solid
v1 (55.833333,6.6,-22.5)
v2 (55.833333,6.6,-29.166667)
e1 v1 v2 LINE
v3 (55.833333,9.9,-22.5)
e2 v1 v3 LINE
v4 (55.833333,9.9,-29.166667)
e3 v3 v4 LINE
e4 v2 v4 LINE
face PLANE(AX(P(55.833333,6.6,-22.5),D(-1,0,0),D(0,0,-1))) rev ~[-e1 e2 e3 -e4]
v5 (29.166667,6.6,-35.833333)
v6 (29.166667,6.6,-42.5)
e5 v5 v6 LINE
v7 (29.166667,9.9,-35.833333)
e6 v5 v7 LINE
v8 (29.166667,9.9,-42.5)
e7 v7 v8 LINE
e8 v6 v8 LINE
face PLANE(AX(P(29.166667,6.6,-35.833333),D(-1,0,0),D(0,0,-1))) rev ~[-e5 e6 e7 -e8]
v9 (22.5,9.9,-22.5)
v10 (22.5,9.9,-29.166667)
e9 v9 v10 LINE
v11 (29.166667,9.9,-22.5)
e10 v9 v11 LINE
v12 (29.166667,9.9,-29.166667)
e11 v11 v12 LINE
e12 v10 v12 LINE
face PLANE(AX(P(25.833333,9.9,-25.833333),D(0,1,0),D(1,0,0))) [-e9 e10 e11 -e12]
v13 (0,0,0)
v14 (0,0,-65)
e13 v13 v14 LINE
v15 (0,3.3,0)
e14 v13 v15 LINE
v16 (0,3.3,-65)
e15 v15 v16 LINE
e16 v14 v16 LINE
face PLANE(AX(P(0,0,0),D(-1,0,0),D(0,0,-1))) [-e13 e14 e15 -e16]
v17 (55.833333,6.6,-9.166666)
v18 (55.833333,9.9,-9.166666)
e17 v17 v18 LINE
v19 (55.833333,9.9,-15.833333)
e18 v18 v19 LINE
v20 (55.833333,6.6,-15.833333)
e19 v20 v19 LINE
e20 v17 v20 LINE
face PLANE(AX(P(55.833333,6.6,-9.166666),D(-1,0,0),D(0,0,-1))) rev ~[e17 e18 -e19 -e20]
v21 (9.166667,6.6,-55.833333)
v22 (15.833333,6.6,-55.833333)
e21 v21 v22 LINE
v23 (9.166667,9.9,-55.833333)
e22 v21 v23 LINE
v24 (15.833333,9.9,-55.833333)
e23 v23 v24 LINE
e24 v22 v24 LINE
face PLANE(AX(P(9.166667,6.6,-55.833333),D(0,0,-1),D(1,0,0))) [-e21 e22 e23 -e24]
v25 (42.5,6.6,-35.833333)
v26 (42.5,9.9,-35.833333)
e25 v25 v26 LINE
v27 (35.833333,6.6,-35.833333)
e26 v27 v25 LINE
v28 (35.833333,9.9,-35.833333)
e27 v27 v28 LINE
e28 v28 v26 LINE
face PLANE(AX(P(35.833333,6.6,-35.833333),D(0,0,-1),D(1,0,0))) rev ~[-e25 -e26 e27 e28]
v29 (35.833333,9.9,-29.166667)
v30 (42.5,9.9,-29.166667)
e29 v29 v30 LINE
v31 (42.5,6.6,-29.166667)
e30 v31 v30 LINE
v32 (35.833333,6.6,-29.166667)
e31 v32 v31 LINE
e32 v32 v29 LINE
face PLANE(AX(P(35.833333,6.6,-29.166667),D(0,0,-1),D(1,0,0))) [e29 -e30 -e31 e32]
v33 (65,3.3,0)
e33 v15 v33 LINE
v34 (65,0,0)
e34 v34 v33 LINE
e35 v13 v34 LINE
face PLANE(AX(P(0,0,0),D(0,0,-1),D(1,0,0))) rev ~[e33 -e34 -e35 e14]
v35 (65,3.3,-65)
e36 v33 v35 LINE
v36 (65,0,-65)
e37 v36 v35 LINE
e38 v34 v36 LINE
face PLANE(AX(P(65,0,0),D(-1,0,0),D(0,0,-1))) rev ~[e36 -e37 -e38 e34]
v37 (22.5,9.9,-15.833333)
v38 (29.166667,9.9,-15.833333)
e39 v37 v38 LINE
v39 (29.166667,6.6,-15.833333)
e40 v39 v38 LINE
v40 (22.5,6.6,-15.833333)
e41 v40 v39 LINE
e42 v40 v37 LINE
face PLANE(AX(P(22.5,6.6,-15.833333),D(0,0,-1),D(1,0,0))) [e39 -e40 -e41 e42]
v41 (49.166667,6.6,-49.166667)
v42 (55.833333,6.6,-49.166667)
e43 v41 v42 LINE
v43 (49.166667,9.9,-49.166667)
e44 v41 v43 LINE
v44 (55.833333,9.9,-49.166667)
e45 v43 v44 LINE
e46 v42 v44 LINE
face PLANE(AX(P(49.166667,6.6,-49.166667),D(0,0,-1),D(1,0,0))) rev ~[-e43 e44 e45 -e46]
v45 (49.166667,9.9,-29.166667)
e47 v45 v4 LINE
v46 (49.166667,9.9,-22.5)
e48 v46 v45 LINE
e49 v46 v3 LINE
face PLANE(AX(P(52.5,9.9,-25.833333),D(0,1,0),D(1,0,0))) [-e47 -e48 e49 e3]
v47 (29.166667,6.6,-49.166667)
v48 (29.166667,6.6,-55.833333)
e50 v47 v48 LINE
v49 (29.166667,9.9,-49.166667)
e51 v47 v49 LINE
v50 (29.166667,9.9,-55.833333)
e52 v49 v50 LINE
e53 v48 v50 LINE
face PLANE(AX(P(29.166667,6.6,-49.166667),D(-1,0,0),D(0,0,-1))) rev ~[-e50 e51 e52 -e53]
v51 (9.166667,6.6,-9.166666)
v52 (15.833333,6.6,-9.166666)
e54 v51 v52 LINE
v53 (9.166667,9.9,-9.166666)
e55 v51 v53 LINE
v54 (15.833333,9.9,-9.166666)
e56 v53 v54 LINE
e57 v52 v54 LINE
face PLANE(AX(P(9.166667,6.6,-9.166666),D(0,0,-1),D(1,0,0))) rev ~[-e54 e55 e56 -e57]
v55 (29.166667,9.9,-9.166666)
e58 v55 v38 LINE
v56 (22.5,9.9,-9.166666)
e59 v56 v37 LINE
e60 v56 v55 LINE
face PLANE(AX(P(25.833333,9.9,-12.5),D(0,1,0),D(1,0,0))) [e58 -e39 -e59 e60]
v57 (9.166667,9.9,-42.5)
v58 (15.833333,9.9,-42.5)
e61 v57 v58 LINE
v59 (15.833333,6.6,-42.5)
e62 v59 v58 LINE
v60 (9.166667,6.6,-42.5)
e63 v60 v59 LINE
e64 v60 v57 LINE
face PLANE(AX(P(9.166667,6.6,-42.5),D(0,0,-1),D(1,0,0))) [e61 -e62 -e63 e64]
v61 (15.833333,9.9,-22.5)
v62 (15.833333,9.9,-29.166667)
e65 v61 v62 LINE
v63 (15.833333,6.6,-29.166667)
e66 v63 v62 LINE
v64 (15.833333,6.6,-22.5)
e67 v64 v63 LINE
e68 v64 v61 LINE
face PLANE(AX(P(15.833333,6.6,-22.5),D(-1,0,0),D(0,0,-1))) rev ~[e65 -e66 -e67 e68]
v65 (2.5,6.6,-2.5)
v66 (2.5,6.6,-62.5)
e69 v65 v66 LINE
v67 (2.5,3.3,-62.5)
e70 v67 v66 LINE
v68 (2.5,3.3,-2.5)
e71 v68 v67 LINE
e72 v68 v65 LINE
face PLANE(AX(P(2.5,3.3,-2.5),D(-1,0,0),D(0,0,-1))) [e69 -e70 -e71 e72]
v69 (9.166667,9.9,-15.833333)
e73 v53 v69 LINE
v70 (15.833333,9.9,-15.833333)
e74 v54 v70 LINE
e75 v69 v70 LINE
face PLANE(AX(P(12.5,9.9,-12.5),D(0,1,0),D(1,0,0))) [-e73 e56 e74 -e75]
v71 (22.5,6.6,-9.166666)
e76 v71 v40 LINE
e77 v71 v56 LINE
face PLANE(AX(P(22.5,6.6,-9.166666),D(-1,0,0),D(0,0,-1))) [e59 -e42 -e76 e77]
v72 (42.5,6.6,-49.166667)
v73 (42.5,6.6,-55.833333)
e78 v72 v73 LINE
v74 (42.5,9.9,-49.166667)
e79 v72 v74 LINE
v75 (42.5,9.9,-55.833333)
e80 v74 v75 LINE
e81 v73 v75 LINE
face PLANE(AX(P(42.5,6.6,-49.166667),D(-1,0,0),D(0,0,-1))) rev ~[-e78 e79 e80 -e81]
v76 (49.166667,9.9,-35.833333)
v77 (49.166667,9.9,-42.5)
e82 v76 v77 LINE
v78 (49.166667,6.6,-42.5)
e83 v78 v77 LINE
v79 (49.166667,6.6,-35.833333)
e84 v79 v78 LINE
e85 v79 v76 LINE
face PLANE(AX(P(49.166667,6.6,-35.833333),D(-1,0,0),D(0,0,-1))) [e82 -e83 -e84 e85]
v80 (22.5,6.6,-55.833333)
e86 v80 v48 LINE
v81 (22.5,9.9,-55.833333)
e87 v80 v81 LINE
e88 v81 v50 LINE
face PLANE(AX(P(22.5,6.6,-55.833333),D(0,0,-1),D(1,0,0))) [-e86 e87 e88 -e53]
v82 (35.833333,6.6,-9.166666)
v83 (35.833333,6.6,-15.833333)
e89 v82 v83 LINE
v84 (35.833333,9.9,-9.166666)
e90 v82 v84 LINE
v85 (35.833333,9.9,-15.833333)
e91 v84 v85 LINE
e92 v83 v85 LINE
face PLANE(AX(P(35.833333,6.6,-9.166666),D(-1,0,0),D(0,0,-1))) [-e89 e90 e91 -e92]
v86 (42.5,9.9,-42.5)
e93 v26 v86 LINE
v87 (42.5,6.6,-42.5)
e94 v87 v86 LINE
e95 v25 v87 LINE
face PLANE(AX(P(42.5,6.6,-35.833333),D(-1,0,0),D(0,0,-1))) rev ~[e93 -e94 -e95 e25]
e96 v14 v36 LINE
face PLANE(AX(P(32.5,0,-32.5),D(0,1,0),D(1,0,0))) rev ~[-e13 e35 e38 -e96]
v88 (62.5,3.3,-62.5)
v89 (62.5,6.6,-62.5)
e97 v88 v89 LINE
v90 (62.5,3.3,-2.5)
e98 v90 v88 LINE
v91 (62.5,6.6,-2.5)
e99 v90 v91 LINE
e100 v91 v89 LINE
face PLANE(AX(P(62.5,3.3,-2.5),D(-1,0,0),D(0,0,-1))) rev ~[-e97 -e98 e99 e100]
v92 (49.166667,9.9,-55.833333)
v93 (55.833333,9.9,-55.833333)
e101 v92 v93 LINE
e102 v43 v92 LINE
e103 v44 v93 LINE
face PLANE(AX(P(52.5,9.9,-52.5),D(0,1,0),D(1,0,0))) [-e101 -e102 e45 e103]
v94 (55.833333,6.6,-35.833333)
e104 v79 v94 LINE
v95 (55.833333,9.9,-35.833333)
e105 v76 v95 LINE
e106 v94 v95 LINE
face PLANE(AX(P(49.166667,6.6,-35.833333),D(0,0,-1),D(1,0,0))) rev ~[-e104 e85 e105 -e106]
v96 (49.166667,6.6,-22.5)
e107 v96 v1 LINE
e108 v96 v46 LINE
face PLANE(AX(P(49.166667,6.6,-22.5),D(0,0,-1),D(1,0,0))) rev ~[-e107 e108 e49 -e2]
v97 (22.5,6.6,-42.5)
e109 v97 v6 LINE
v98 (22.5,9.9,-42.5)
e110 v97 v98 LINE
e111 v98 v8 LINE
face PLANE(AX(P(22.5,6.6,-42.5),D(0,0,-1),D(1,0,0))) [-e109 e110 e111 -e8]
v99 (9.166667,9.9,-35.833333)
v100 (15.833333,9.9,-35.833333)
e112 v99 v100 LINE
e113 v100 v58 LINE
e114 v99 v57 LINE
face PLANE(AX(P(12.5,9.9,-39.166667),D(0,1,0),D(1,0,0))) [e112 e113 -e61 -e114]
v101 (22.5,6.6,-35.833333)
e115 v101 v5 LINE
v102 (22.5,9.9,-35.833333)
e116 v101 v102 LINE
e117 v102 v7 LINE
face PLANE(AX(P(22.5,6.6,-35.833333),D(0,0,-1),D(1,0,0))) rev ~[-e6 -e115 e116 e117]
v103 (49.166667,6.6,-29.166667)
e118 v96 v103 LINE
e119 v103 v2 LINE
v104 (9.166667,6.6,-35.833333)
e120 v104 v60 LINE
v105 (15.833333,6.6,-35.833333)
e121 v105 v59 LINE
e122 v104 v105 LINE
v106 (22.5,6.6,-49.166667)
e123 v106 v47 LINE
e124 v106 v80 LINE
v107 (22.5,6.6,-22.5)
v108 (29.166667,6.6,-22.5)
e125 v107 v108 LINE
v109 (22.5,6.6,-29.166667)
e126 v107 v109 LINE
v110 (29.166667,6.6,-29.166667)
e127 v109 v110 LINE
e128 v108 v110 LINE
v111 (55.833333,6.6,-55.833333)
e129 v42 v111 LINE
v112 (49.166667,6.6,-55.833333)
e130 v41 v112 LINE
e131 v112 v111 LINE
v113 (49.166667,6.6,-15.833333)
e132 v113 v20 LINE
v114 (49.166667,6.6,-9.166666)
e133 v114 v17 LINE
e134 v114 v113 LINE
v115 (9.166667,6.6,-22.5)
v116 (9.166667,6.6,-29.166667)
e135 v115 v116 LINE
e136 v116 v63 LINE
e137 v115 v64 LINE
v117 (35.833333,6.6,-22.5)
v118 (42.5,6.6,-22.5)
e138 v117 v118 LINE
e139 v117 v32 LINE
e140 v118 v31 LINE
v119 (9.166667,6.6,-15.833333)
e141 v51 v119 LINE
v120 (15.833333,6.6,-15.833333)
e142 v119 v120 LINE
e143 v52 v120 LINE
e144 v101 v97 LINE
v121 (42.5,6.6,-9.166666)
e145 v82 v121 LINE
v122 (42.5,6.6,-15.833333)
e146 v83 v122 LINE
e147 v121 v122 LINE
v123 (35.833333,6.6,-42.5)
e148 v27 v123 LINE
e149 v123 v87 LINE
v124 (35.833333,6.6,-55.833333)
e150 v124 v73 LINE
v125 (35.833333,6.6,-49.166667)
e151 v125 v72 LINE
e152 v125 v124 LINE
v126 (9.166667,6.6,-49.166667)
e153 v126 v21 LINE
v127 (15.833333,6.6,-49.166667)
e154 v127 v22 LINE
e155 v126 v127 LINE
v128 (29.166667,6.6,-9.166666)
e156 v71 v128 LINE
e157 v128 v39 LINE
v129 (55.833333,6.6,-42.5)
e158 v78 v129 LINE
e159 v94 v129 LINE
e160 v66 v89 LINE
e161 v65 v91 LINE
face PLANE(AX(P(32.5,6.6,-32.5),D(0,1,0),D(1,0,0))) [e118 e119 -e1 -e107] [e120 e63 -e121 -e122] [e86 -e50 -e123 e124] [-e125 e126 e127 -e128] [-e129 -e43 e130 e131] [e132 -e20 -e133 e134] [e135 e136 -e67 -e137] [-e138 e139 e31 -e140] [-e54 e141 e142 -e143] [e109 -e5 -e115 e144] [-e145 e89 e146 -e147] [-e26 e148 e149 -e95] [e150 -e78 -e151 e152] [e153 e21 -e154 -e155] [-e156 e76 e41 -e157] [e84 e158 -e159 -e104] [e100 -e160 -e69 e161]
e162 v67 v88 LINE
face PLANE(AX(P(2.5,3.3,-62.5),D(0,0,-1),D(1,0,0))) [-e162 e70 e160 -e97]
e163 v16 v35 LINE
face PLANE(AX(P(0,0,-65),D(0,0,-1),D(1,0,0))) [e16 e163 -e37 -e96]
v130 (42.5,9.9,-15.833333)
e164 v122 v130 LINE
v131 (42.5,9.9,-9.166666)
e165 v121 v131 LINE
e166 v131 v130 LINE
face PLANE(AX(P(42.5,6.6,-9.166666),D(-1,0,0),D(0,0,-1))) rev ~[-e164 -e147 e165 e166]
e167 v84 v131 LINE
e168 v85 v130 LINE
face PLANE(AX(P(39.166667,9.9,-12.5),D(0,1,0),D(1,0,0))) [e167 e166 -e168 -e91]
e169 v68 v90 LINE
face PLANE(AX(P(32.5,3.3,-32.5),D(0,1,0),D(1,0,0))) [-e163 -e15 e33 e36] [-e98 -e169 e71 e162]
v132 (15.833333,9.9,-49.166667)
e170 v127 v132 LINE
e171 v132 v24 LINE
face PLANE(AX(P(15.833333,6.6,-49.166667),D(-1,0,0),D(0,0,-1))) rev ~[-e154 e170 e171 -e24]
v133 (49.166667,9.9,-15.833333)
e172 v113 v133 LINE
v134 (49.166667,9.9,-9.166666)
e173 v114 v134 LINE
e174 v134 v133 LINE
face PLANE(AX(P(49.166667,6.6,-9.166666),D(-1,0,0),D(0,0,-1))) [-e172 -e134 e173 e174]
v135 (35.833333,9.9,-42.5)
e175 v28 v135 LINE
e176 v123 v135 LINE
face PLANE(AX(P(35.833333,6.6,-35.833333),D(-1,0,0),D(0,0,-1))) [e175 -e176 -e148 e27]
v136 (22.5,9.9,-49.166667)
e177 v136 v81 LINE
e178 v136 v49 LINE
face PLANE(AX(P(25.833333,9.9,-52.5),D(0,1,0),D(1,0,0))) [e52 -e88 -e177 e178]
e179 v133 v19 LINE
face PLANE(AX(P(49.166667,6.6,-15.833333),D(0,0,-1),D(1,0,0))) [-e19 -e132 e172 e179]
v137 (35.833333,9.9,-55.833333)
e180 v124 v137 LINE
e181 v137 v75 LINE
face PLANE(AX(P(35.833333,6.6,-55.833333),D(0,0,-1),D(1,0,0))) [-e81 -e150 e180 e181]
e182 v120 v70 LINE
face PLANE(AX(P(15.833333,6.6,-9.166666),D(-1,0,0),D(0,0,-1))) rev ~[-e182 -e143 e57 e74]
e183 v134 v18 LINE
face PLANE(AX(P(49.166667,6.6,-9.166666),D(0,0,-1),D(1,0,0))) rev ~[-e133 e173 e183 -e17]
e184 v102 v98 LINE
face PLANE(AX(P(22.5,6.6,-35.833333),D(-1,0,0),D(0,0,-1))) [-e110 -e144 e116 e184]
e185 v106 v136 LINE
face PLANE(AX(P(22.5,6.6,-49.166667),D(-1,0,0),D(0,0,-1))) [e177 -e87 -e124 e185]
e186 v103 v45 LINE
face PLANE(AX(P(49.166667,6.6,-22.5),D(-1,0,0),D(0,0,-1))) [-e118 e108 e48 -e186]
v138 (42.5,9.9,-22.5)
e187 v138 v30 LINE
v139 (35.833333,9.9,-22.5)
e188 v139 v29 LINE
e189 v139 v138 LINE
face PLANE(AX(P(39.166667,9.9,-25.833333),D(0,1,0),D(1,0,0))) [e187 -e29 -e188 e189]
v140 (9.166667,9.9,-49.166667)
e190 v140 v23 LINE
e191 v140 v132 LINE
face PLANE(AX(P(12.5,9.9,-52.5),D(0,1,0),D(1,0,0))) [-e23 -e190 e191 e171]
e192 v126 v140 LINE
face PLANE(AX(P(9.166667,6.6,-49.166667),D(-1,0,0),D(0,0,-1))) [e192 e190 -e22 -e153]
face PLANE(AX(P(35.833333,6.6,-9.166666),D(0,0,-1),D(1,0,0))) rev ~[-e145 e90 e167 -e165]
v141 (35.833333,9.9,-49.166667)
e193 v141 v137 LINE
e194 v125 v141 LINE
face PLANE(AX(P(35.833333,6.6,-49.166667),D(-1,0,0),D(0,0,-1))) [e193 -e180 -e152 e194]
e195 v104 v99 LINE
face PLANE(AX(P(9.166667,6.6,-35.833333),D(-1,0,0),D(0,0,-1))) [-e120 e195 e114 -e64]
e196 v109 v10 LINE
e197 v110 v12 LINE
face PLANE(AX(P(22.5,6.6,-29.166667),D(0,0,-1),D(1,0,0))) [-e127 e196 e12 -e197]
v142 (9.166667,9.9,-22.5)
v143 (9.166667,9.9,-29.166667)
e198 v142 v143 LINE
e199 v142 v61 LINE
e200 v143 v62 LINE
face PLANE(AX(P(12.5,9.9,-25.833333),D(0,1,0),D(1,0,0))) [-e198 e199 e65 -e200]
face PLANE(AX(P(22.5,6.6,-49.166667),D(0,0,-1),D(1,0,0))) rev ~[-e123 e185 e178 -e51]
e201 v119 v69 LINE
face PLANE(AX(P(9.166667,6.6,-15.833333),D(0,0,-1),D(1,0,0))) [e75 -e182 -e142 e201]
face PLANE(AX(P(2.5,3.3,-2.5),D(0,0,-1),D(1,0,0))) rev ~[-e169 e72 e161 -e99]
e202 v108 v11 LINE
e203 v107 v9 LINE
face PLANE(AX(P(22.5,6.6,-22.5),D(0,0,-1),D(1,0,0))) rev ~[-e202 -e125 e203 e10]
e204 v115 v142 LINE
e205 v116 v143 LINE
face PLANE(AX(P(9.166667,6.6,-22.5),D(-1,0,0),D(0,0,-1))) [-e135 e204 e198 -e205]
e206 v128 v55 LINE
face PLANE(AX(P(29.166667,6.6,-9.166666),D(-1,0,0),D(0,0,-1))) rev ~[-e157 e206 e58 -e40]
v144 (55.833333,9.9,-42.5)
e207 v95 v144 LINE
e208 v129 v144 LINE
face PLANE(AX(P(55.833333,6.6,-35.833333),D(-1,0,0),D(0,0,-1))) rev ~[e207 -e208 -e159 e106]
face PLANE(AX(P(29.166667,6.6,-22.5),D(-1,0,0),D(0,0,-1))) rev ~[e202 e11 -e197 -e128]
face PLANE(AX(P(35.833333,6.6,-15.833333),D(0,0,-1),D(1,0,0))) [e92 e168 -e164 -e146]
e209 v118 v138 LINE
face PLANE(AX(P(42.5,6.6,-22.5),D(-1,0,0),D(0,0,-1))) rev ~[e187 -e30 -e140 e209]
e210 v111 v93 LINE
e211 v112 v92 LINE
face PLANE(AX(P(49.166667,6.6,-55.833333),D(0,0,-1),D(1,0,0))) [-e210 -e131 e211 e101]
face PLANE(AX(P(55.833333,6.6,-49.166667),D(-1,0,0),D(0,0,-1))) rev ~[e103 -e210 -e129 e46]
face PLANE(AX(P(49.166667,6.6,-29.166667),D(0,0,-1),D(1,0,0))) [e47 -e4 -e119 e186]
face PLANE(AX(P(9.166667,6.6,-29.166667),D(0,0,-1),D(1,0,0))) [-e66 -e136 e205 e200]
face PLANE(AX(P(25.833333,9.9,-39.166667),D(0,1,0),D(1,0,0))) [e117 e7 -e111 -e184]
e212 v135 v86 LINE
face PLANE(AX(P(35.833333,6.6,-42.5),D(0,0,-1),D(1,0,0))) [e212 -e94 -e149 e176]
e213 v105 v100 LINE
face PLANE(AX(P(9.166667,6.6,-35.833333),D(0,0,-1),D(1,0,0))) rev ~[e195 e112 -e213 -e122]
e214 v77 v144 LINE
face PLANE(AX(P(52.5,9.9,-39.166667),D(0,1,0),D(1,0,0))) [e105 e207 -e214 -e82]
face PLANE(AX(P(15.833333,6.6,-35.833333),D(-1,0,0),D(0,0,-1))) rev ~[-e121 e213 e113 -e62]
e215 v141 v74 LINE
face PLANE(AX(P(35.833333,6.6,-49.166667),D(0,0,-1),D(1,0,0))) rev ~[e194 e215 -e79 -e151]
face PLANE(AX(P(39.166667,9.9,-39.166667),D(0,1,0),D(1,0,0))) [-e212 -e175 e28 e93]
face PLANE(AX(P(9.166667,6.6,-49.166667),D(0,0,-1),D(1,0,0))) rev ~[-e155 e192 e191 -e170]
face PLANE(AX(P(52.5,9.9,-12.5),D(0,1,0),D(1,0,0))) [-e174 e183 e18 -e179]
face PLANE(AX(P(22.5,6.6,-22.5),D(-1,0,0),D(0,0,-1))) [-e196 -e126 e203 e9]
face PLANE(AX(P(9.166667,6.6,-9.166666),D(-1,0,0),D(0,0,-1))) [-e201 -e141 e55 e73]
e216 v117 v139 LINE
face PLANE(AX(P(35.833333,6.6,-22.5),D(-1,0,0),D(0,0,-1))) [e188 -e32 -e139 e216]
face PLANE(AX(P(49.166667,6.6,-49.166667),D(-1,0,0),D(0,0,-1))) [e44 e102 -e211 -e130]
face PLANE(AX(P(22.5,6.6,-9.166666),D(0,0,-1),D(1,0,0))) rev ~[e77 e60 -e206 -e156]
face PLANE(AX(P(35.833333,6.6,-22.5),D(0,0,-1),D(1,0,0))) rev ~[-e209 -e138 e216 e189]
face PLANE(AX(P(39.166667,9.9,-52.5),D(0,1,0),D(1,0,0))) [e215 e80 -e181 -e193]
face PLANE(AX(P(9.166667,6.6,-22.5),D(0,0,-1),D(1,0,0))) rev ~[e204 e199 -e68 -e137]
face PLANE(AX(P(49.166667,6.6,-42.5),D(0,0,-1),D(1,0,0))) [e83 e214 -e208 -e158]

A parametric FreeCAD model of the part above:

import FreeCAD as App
import Part
import Sketcher

V = App.Vector
Q = App.Units.Quantity

doc = App.newDocument("Part")
body = doc.addObject("PartDesign::Body", "Body")

sketch1 = body.newObject("Sketcher::SketchObject", "Sketch")
sketch1.AttachmentSupport = (doc.getObject("XZ_Plane"), [""])
sketch1.MapMode = "FlatFace"
sketch1.addGeometry([
    Part.LineSegment(V(0, -65, 0), V(0, 0, 0)),
    Part.LineSegment(V(0, 0, 0), V(65, 0, 0)),
    Part.LineSegment(V(65, 0, 0), V(65, -65, 0)),
    Part.LineSegment(V(65, -65, 0), V(0, -65, 0)),
], False)
sketch1.addConstraint([
    Sketcher.Constraint("Coincident", 0, 2, 1, 1),
    Sketcher.Constraint("Coincident", 1, 2, 2, 1),
    Sketcher.Constraint("Coincident", 2, 2, 3, 1),
    Sketcher.Constraint("Coincident", 3, 2, 0, 1),
    Sketcher.Constraint("Vertical", 0),
    Sketcher.Constraint("Horizontal", 1),
    Sketcher.Constraint("Vertical", 2),
    Sketcher.Constraint("Horizontal", 3),
    Sketcher.Constraint("Coincident", 0, 2, -1, 1),
    Sketcher.Constraint("Equal", 3, 0),
    Sketcher.Constraint("DistanceX", 1, 1, 1, 2, Q("65 mm")),
])
pad1 = body.newObject("PartDesign::Pad", "Pad")
pad1.Profile = sketch1
pad1.Length = 3.3
pad1.Reversed = True

sketch2 = body.newObject("Sketcher::SketchObject", "Sketch001")
sketch2.AttachmentSupport = (doc.getObject("XZ_Plane"), [""])
sketch2.MapMode = "FlatFace"
sketch2.AttachmentOffset = App.Placement(V(0, 0, -3.3), App.Rotation())
sketch2.addGeometry([
    Part.LineSegment(V(2, -62, 0), V(2, -2, 0)),
    Part.LineSegment(V(2, -2, 0), V(62, -2, 0)),
    Part.LineSegment(V(62, -2, 0), V(62, -62, 0)),
    Part.LineSegment(V(62, -62, 0), V(2, -62, 0)),
], False)
sketch2.addConstraint([
    Sketcher.Constraint("Coincident", 0, 2, 1, 1),
    Sketcher.Constraint("Coincident", 1, 2, 2, 1),
    Sketcher.Constraint("Coincident", 2, 2, 3, 1),
    Sketcher.Constraint("Coincident", 3, 2, 0, 1),
    Sketcher.Constraint("Vertical", 0),
    Sketcher.Constraint("Horizontal", 1),
    Sketcher.Constraint("Vertical", 2),
    Sketcher.Constraint("Horizontal", 3),
    Sketcher.Constraint("Equal", 3, 0),
    Sketcher.Constraint("DistanceX", 1, 1, 1, 2, Q("60 mm")),
    Sketcher.Constraint("DistanceX", -1, 1, 0, 2, Q("2.5 mm")),
    Sketcher.Constraint("DistanceY", 0, 2, -1, 1, Q("2.5 mm")),
])
pad2 = body.newObject("PartDesign::Pad", "Pad001")
pad2.Profile = sketch2
pad2.Length = 3.3
pad2.Reversed = True

sketch3 = body.newObject("Sketcher::SketchObject", "Sketch002")
sketch3.AttachmentSupport = (doc.getObject("XZ_Plane"), [""])
sketch3.MapMode = "FlatFace"
sketch3.AttachmentOffset = App.Placement(V(0, 0, -6.6), App.Rotation())
sketch3.addGeometry([
    Part.LineSegment(V(9, -56, 0), V(9, -49, 0)),
    Part.LineSegment(V(9, -49, 0), V(16, -49, 0)),
    Part.LineSegment(V(16, -49, 0), V(16, -56, 0)),
    Part.LineSegment(V(16, -56, 0), V(9, -56, 0)),
    Part.LineSegment(V(22, -56, 0), V(22, -49, 0)),
    Part.LineSegment(V(22, -49, 0), V(29, -49, 0)),
    Part.LineSegment(V(29, -49, 0), V(29, -56, 0)),
    Part.LineSegment(V(29, -56, 0), V(22, -56, 0)),
    Part.LineSegment(V(36, -56, 0), V(36, -49, 0)),
    Part.LineSegment(V(36, -49, 0), V(42, -49, 0)),
    Part.LineSegment(V(42, -49, 0), V(42, -56, 0)),
    Part.LineSegment(V(42, -56, 0), V(36, -56, 0)),
    Part.LineSegment(V(49, -56, 0), V(49, -49, 0)),
    Part.LineSegment(V(49, -49, 0), V(56, -49, 0)),
    Part.LineSegment(V(56, -49, 0), V(56, -56, 0)),
    Part.LineSegment(V(56, -56, 0), V(49, -56, 0)),
], False)
sketch3.addConstraint([
    Sketcher.Constraint("Coincident", 0, 2, 1, 1),
    Sketcher.Constraint("Coincident", 1, 2, 2, 1),
    Sketcher.Constraint("Coincident", 2, 2, 3, 1),
    Sketcher.Constraint("Coincident", 3, 2, 0, 1),
    Sketcher.Constraint("Coincident", 4, 2, 5, 1),
    Sketcher.Constraint("Coincident", 5, 2, 6, 1),
    Sketcher.Constraint("Coincident", 6, 2, 7, 1),
    Sketcher.Constraint("Coincident", 7, 2, 4, 1),
    Sketcher.Constraint("Coincident", 8, 2, 9, 1),
    Sketcher.Constraint("Coincident", 9, 2, 10, 1),
    Sketcher.Constraint("Coincident", 10, 2, 11, 1),
    Sketcher.Constraint("Coincident", 11, 2, 8, 1),
    Sketcher.Constraint("Coincident", 12, 2, 13, 1),
    Sketcher.Constraint("Coincident", 13, 2, 14, 1),
    Sketcher.Constraint("Coincident", 14, 2, 15, 1),
    Sketcher.Constraint("Coincident", 15, 2, 12, 1),
    Sketcher.Constraint("Vertical", 0),
    Sketcher.Constraint("Horizontal", 1),
    Sketcher.Constraint("Vertical", 2),
    Sketcher.Constraint("Horizontal", 3),
    Sketcher.Constraint("Vertical", 4),
    Sketcher.Constraint("Horizontal", 5),
    Sketcher.Constraint("Vertical", 6),
    Sketcher.Constraint("Horizontal", 7),
    Sketcher.Constraint("Vertical", 8),
    Sketcher.Constraint("Horizontal", 9),
    Sketcher.Constraint("Vertical", 10),
    Sketcher.Constraint("Horizontal", 11),
    Sketcher.Constraint("Vertical", 12),
    Sketcher.Constraint("Horizontal", 13),
    Sketcher.Constraint("Vertical", 14),
    Sketcher.Constraint("Horizontal", 15),
    Sketcher.Constraint("Horizontal", 1, 2, 4, 2),
    Sketcher.Constraint("Horizontal", 3, 2, 6, 2),
    Sketcher.Constraint("Horizontal", 5, 2, 8, 2),
    Sketcher.Constraint("Horizontal", 7, 2, 10, 2),
    Sketcher.Constraint("Horizontal", 9, 2, 12, 2),
    Sketcher.Constraint("Horizontal", 11, 2, 14, 2),
    Sketcher.Constraint("Equal", 3, 5),
    Sketcher.Constraint("Equal", 7, 9),
    Sketcher.Constraint("Equal", 11, 13),
    Sketcher.Constraint("Equal", 15, 0),
    Sketcher.Constraint("DistanceX", 0, 2, 5, 2, Q("20 mm")),
    Sketcher.Constraint("DistanceX", 1, 2, 8, 2, Q("20 mm")),
    Sketcher.Constraint("DistanceX", 4, 2, 9, 2, Q("20 mm")),
    Sketcher.Constraint("DistanceX", 5, 2, 12, 2, Q("20 mm")),
    Sketcher.Constraint("DistanceX", -1, 1, 4, 2, Q("22.5 mm")),
    Sketcher.Constraint("DistanceY", 0, 2, -1, 1, Q("49.166667 mm")),
])
pad3 = body.newObject("PartDesign::Pad", "Pad002")
pad3.Profile = sketch3
pad3.Length = 3.3
pad3.Reversed = True
doc.recompute()

linearpattern = body.newObject("PartDesign::LinearPattern", "LinearPattern")
linearpattern.Originals = [pad3]
linearpattern.Direction = (doc.getObject("Z_Axis"), [""])
linearpattern.Mode = "offset"
linearpattern.Offset = 13.333333
linearpattern.Occurrences = 4
body.Tip = linearpattern

doc.recompute()
